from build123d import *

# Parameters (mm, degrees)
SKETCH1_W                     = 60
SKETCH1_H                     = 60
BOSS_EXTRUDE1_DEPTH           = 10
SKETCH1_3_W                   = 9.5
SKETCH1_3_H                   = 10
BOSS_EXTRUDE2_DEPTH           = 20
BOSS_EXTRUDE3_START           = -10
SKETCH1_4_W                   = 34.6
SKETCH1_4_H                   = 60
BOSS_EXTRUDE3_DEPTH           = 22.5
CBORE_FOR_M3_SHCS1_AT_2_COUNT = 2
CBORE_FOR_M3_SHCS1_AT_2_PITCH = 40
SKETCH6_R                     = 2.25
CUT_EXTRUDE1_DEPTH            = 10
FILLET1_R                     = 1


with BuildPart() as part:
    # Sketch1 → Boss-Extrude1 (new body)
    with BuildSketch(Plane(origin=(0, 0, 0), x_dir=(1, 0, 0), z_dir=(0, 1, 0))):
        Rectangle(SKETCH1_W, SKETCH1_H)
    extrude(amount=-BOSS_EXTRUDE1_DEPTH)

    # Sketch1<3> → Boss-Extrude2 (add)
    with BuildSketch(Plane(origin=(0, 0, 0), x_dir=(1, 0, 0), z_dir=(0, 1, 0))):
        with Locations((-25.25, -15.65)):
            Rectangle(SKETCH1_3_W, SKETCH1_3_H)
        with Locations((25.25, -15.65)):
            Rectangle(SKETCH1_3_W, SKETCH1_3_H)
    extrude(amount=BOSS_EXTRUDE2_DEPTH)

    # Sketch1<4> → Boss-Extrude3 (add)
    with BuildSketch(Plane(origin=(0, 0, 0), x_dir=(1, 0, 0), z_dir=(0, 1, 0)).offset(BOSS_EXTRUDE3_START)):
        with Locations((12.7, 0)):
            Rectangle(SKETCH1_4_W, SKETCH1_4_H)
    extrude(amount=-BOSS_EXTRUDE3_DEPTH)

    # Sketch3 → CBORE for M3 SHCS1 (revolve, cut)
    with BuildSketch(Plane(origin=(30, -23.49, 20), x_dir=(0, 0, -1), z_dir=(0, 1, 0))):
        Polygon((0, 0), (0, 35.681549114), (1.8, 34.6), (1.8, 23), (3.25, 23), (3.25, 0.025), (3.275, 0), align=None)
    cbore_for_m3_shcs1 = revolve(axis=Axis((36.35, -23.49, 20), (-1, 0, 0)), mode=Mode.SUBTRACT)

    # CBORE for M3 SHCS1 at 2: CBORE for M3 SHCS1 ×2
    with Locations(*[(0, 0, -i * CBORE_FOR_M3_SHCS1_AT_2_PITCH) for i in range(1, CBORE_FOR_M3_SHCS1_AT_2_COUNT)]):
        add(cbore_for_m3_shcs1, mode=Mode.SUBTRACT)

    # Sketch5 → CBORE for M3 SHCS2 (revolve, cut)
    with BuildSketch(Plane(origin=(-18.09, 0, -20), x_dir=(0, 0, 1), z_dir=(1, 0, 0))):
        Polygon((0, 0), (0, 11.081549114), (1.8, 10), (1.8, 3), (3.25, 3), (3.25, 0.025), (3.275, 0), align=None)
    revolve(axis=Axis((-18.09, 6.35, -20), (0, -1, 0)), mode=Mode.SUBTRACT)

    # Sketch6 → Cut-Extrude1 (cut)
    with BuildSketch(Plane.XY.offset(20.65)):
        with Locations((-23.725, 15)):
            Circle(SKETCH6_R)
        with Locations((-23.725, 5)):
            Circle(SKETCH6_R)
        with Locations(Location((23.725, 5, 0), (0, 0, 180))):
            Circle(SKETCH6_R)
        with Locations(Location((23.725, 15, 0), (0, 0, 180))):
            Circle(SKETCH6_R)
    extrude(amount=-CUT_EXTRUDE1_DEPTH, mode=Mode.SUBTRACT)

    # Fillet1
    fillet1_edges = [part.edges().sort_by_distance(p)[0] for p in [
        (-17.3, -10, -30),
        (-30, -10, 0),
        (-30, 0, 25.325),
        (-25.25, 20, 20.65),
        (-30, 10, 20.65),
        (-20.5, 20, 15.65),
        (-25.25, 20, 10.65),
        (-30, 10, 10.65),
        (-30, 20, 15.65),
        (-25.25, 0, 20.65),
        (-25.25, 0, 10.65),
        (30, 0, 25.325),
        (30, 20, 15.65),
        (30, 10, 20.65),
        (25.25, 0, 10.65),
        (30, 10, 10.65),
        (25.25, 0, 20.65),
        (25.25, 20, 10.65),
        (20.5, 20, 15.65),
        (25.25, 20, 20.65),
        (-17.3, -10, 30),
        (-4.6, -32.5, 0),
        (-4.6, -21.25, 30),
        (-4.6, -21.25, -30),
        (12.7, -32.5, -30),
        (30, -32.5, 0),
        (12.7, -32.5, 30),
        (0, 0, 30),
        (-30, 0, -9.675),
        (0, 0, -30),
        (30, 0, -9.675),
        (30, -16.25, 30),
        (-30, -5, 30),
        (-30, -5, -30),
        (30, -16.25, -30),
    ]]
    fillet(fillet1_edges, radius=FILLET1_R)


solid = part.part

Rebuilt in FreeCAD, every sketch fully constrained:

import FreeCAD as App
import Part
import Sketcher
Q = App.Units.Quantity


def edges_at(feature, points):
    """Names of the edges that pass closest to the given points."""
    edges = feature.Shape.Edges
    near = lambda p: min(range(len(edges)), key=lambda i: edges[i].distToShape(Part.Vertex(*p))[0])
    return sorted({f"Edge{near(p) + 1}" for p in points})


def add_polygon(sketch, points):
    """Adds a closed chain of lines whose ends are joined by coincident constraints."""
    first, n = sketch.GeometryCount, len(points)
    for a, b in zip(points, points[1:] + points[:1]):
        sketch.addGeometry(Part.LineSegment(App.Vector(*a, 0), App.Vector(*b, 0)), False)
    for i in range(n):
        sketch.addConstraint(Sketcher.Constraint("Coincident", first + i, 2, first + (i + 1) % n, 1))

doc = App.newDocument("Part")
body = doc.addObject("PartDesign::Body", "Body")

sketch1 = doc.addObject("Sketcher::SketchObject", "Sketch")
body.addObject(sketch1)
sketch1.AttachmentSupport = (doc.XZ_Plane, [""])
sketch1.MapMode = "FlatFace"
add_polygon(sketch1, [(-30, -30), (-30, 30), (30, 30), (30, -30)])
sketch1.addConstraint([
    Sketcher.Constraint("Vertical", 0),
    Sketcher.Constraint("Horizontal", 1),
    Sketcher.Constraint("Vertical", 2),
    Sketcher.Constraint("Horizontal", 3),
    Sketcher.Constraint("Symmetric", 0, 2, 2, 2, -1, 1),
    Sketcher.Constraint("Equal", 3, 0),
    Sketcher.Constraint("DistanceX", 1, 1, 1, 2, 60.0),
])
pad1 = doc.addObject("PartDesign::Pad", "Pad")
body.addObject(pad1)
pad1.Profile = sketch1
pad1.Length = 10

sketch2 = doc.addObject("Sketcher::SketchObject", "Sketch001")
body.addObject(sketch2)
sketch2.AttachmentSupport = (doc.XZ_Plane, [""])
sketch2.MapMode = "FlatFace"
add_polygon(sketch2, [(-30, 11), (-30, 21), (-20, 21), (-20, 11)])
add_polygon(sketch2, [(20, 11), (20, 21), (30, 21), (30, 11)])
sketch2.addConstraint([
    Sketcher.Constraint("Vertical", 0),
    Sketcher.Constraint("Horizontal", 1),
    Sketcher.Constraint("Vertical", 2),
    Sketcher.Constraint("Horizontal", 3),
    Sketcher.Constraint("Vertical", 4),
    Sketcher.Constraint("Horizontal", 5),
    Sketcher.Constraint("Vertical", 6),
    Sketcher.Constraint("Horizontal", 7),
    Sketcher.Constraint("Symmetric", 1, 2, 4, 2, -2),
    Sketcher.Constraint("Symmetric", 3, 2, 6, 2, -2),
    Sketcher.Constraint("DistanceY", 0, 1, 0, 2, 10.0),
    Sketcher.Constraint("DistanceX", 1, 1, 1, 2, 9.5),
    Sketcher.Constraint("DistanceX", 0, 2, -1, 1, 30.0),
    Sketcher.Constraint("DistanceY", -1, 1, 0, 2, 20.65),
])
pad2 = doc.addObject("PartDesign::Pad", "Pad001")
body.addObject(pad2)
pad2.Profile = sketch2
pad2.Length = 20
pad2.Reversed = True

sketch3 = doc.addObject("Sketcher::SketchObject", "Sketch002")
body.addObject(sketch3)
sketch3.AttachmentSupport = (doc.XZ_Plane, [""])
sketch3.MapMode = "FlatFace"
sketch3.AttachmentOffset = App.Placement(App.Vector(0, 0, 10), App.Rotation())
add_polygon(sketch3, [(-5, -30), (-5, 30), (30, 30), (30, -30)])
sketch3.addConstraint([
    Sketcher.Constraint("Vertical", 0),
    Sketcher.Constraint("Horizontal", 1),
    Sketcher.Constraint("Vertical", 2),
    Sketcher.Constraint("Horizontal", 3),
    Sketcher.Constraint("DistanceY", 0, 1, 0, 2, 60.0),
    Sketcher.Constraint("DistanceX", 1, 1, 1, 2, 34.6),
    Sketcher.Constraint("DistanceY", -1, 1, 0, 2, 30.0),
    Sketcher.Constraint("DistanceX", -1, 1, 1, 2, 30.0),
])
pad3 = doc.addObject("PartDesign::Pad", "Pad002")
body.addObject(pad3)
pad3.Profile = sketch3
pad3.Length = 22.5

sketch4 = doc.addObject("Sketcher::SketchObject", "Sketch003")
body.addObject(sketch4)
sketch4.AttachmentSupport = (doc.XZ_Plane, [""])
sketch4.MapMode = "FlatFace"
sketch4.AttachmentOffset = App.Placement(App.Vector(0, 0, 23.49), App.Rotation())
add_polygon(sketch4, [(-5.682, 20), (30, 20), (30, 16.725), (29.975, 16.75), (7, 16.75), (7, 18.2), (-4.6, 18.2)])
sketch4.addGeometry(Part.LineSegment(App.Vector(30, 20, 0), App.Vector(-5.682, 20, 0)), True)
sketch4.addConstraint([
    Sketcher.Constraint("Horizontal", 0),
    Sketcher.Constraint("Vertical", 1),
    Sketcher.Constraint("Horizontal", 3),
    Sketcher.Constraint("Vertical", 4),
    Sketcher.Constraint("Horizontal", 5),
    Sketcher.Constraint("Horizontal", 7),
    Sketcher.Constraint("Coincident", 7, 1, 0, 2),
    Sketcher.Constraint("Equal", 0, 7),
    Sketcher.Constraint("Angle", 2, Q("135 deg")),
    Sketcher.Constraint("Angle", 6, Q("121 deg")),
    Sketcher.Constraint("DistanceX", 5, 2, 5, 1, 11.6),
    Sketcher.Constraint("DistanceX", -1, 1, 0, 2, 30.0),
    Sketcher.Constraint("DistanceY", -1, 1, 0, 2, 20.0),
    Sketcher.Constraint("DistanceX", -1, 1, 3, 2, 7.0),
    Sketcher.Constraint("DistanceY", 4, 1, 4, 2, 1.45),
    Sketcher.Constraint("DistanceY", -1, 1, 4, 2, 18.2),
    Sketcher.Constraint("DistanceX", 3, 2, 3, 1, 22.975),
])
groove = doc.addObject("PartDesign::Groove", "Groove")
body.addObject(groove)
groove.Profile = sketch4
groove.ReferenceAxis = (sketch4, ["Axis0"])
groove.Angle = 360
doc.recompute()

linearpattern = doc.addObject("PartDesign::LinearPattern", "LinearPattern")
body.addObject(linearpattern)
linearpattern.Originals = [groove]
linearpattern.Direction = (doc.Z_Axis, [""])
linearpattern.Mode = "offset"
linearpattern.Offset = 40
linearpattern.Occurrences = 2
linearpattern.Reversed = True
body.Tip = linearpattern

sketch5 = doc.addObject("Sketcher::SketchObject", "Sketch004")
body.addObject(sketch5)
sketch5.AttachmentSupport = (doc.YZ_Plane, [""])
sketch5.MapMode = "FlatFace"
sketch5.AttachmentOffset = App.Placement(App.Vector(0, 0, -18.09), App.Rotation())
add_polygon(sketch5, [(-11.082, -20), (0, -20), (0, -16.725), (-0.025, -16.75), (-3, -16.75), (-3, -18.2), (-10, -18.2)])
sketch5.addGeometry(Part.LineSegment(App.Vector(0, -20, 0), App.Vector(-11.082, -20, 0)), True)
sketch5.addConstraint([
    Sketcher.Constraint("Horizontal", 0),
    Sketcher.Constraint("Vertical", 1),
    Sketcher.Constraint("Horizontal", 3),
    Sketcher.Constraint("Vertical", 4),
    Sketcher.Constraint("Horizontal", 5),
    Sketcher.Constraint("Horizontal", 7),
    Sketcher.Constraint("Coincident", 7, 1, 0, 2),
    Sketcher.Constraint("PointOnObject", 0, 2, -2),
    Sketcher.Constraint("Equal", 0, 7),
    Sketcher.Constraint("DistanceX", 5, 2, 5, 1, 7.0),
    Sketcher.Constraint("Angle", 2, Q("-135 deg")),
    Sketcher.Constraint("Angle", 6, Q("-121 deg")),
    Sketcher.Constraint("DistanceY", 0, 2, -1, 1, 20.0),
    Sketcher.Constraint("DistanceX", 3, 2, -1, 1, 3.0),
    Sketcher.Constraint("DistanceY", 4, 2, 4, 1, 1.45),
    Sketcher.Constraint("DistanceY", 4, 2, -1, 1, 18.2),
    Sketcher.Constraint("DistanceX", 3, 2, 3, 1, 2.975),
])
groove2 = doc.addObject("PartDesign::Groove", "Groove001")
body.addObject(groove2)
groove2.Profile = sketch5
groove2.ReferenceAxis = (sketch5, ["Axis0"])
groove2.Angle = 360

sketch6 = doc.addObject("Sketcher::SketchObject", "Sketch005")
body.addObject(sketch6)
sketch6.AttachmentSupport = (doc.XY_Plane, [""])
sketch6.MapMode = "FlatFace"
sketch6.AttachmentOffset = App.Placement(App.Vector(0, 0, 20.65), App.Rotation())
sketch6.addGeometry([
    Part.Circle(App.Vector(-23.7, 15, 0), App.Vector(0, 0, 1), 2.2),
    Part.Circle(App.Vector(-23.7, 5, 0), App.Vector(0, 0, 1), 2.2),
    Part.Circle(App.Vector(23.7, 5, 0), App.Vector(0, 0, 1), 2.2),
    Part.Circle(App.Vector(23.7, 15, 0), App.Vector(0, 0, 1), 2.2),
], False)
sketch6.addConstraint([
    Sketcher.Constraint("Equal", 0, 1),
    Sketcher.Constraint("Equal", 1, 2),
    Sketcher.Constraint("Equal", 2, 3),
    Sketcher.Constraint("Symmetric", 1, 3, 2, 3, -2),
    Sketcher.Constraint("Symmetric", 0, 3, 3, 3, -2),
    Sketcher.Constraint("Vertical", 0, 3, 1, 3),
    Sketcher.Constraint("Diameter", 0, 4.5),
    Sketcher.Constraint("DistanceY", -1, 1, 0, 3, 15.0),
    Sketcher.Constraint("DistanceY", -1, 1, 1, 3, 5.0),
    Sketcher.Constraint("DistanceX", 1, 3, 2, 3, 47.45),
])
pocket1 = doc.addObject("PartDesign::Pocket", "Pocket")
body.addObject(pocket1)
pocket1.Profile = sketch6
pocket1.Length = 10
doc.recompute()

fillet = doc.addObject("PartDesign::Fillet", "Fillet")
body.addObject(fillet)
fillet.Base = (pocket1, edges_at(pocket1, [
    (-17.3, -10, -30),
    (-30, -10, 0),
    (-30, 0, 25.325),
    (-25.25, 20, 20.65),
    (-30, 10, 20.65),
    (-20.5, 20, 15.65),
    (-25.25, 20, 10.65),
    (-30, 10, 10.65),
    (-30, 20, 15.65),
    (-25.25, 0, 20.65),
    (-25.25, 0, 10.65),
    (30, 0, 25.325),
    (30, 20, 15.65),
    (30, 10, 20.65),
    (25.25, 0, 10.65),
    (30, 10, 10.65),
    (25.25, 0, 20.65),
    (25.25, 20, 10.65),
    (20.5, 20, 15.65),
    (25.25, 20, 20.65),
    (-17.3, -10, 30),
    (-4.6, -32.5, 0),
    (-4.6, -21.25, 30),
    (-4.6, -21.25, -30),
    (12.7, -32.5, -30),
    (30, -32.5, 0),
    (12.7, -32.5, 30),
    (0, 0, 30),
    (-30, 0, -9.675),
    (0, 0, -30),
    (30, 0, -9.675),
    (30, -16.25, 30),
    (-30, -5, 30),
    (-30, -5, -30),
    (30, -16.25, -30),
]))
fillet.Radius = 1

doc.recompute()
